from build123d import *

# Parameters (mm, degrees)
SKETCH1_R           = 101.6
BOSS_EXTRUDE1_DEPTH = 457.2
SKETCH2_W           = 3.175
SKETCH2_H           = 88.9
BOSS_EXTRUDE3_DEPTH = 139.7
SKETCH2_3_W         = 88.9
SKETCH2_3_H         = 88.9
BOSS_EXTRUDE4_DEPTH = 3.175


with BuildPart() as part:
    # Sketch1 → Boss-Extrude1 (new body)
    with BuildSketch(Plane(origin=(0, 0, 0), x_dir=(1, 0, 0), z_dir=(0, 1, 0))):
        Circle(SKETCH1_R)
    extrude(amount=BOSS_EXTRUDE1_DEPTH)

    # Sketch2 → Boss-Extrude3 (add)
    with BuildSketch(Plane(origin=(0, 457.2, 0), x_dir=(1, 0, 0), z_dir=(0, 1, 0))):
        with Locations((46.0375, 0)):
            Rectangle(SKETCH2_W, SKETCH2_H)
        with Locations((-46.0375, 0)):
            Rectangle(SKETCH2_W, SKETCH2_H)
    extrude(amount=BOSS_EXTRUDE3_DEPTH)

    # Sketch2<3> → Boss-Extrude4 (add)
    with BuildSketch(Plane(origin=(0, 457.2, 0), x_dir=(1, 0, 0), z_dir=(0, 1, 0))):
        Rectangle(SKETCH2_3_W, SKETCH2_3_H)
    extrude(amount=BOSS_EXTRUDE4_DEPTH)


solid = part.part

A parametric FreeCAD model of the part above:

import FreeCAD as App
import Part
import Sketcher
from FreeCAD import Vector
Q = App.Units.Quantity


def add_polygon(sketch, points):
    """Adds a closed chain of lines whose ends are joined by coincident constraints."""
    first, n = sketch.GeometryCount, len(points)
    for a, b in zip(points, points[1:] + points[:1]):
        sketch.addGeometry(Part.LineSegment(App.Vector(*a, 0), App.Vector(*b, 0)), False)
    for i in range(n):
        sketch.addConstraint(Sketcher.Constraint("Coincident", first + i, 2, first + (i + 1) % n, 1))

doc = App.newDocument("Part")
params = doc.addObject("Spreadsheet::Sheet", "Params")
for row, (alias, value) in enumerate([
    ("sketch1_diameter", "8 in"),
    ("pad1_length", "18 in"),
    ("sketch2_height", "3.5 in"),
    ("sketch2_width", "0.125 in"),
    ("pad2_length", "5.5 in"),
    ("sketch3_width", "3.5 in"),
    ("pad3_length", "0.125 in"),
], start=1):
    params.set(f"A{row}", alias)
    params.set(f"B{row}", "=" + value)
    params.setAlias(f"B{row}", alias)

body = doc.addObject("PartDesign::Body", "Body")

sketch1 = doc.addObject("Sketcher::SketchObject", "Sketch")
body.addObject(sketch1)
sketch1.AttachmentSupport = (doc.XZ_Plane, [""])
sketch1.MapMode = "FlatFace"
sketch1.addGeometry(Part.Circle(Vector(0, 0, 0), Vector(0, 0, 1), 102), False)
sketch1.addConstraint([
    Sketcher.Constraint("Coincident", 0, 3, -1, 1),
    Sketcher.Constraint("Diameter", 0, Q("8 in")),
])
sketch1.setExpression("Constraints[1]", "Params.sketch1_diameter")
pad1 = doc.addObject("PartDesign::Pad", "Pad")
body.addObject(pad1)
pad1.Profile = sketch1
pad1.setExpression("Length", "Params.pad1_length")
pad1.Reversed = True

sketch2 = doc.addObject("Sketcher::SketchObject", "Sketch001")
body.addObject(sketch2)
sketch2.AttachmentSupport = (doc.XZ_Plane, [""])
sketch2.MapMode = "FlatFace"
sketch2.AttachmentOffset = App.Placement(Vector(0, 0, -18 * 25.4), App.Rotation())
add_polygon(sketch2, [(44.5, -44.5), (44.5, 44.5), (47.6, 44.5), (47.6, -44.5)])
add_polygon(sketch2, [(-47.6, -44.5), (-47.6, 44.5), (-44.5, 44.5), (-44.5, -44.5)])
sketch2.addConstraint([
    Sketcher.Constraint("Vertical", 0),
    Sketcher.Constraint("Horizontal", 1),
    Sketcher.Constraint("Vertical", 2),
    Sketcher.Constraint("Horizontal", 3),
    Sketcher.Constraint("Vertical", 4),
    Sketcher.Constraint("Horizontal", 5),
    Sketcher.Constraint("Vertical", 6),
    Sketcher.Constraint("Horizontal", 7),
    Sketcher.Constraint("Symmetric", 2, 2, 4, 2, -1, 1),
    Sketcher.Constraint("Symmetric", 0, 2, 6, 2, -1, 1),
    Sketcher.Constraint("Horizontal", 1, 2, 4, 2),
    Sketcher.Constraint("DistanceY", 0, 1, 0, 2, Q("3.5 in")),
    Sketcher.Constraint("DistanceX", 5, 2, 0, 2, Q("3.5 in")),
    Sketcher.Constraint("DistanceX", 1, 1, 1, 2, Q("0.125 in")),
])
sketch2.setExpression("Constraints[19]", "Params.sketch2_height")
sketch2.setExpression("Constraints[21]", "Params.sketch2_width")
pad2 = doc.addObject("PartDesign::Pad", "Pad001")
body.addObject(pad2)
pad2.Profile = sketch2
pad2.setExpression("Length", "Params.pad2_length")
pad2.Reversed = True

sketch3 = doc.addObject("Sketcher::SketchObject", "Sketch002")
body.addObject(sketch3)
sketch3.AttachmentSupport = (doc.XZ_Plane, [""])
sketch3.MapMode = "FlatFace"
sketch3.AttachmentOffset = App.Placement(Vector(0, 0, -18 * 25.4), App.Rotation())
add_polygon(sketch3, [(-44, -44), (-44, 44), (44, 44), (44, -44)])
sketch3.addConstraint([
    Sketcher.Constraint("Vertical", 0),
    Sketcher.Constraint("Horizontal", 1),
    Sketcher.Constraint("Vertical", 2),
    Sketcher.Constraint("Horizontal", 3),
    Sketcher.Constraint("Symmetric", 0, 2, 2, 2, -1, 1),
    Sketcher.Constraint("Equal", 3, 0),
    Sketcher.Constraint("DistanceX", 1, 1, 1, 2, Q("3.5 in")),
])
sketch3.setExpression("Constraints[10]", "Params.sketch3_width")
pad3 = doc.addObject("PartDesign::Pad", "Pad002")
body.addObject(pad3)
pad3.Profile = sketch3
pad3.setExpression("Length", "Params.pad3_length")
pad3.Reversed = True

doc.recompute()
